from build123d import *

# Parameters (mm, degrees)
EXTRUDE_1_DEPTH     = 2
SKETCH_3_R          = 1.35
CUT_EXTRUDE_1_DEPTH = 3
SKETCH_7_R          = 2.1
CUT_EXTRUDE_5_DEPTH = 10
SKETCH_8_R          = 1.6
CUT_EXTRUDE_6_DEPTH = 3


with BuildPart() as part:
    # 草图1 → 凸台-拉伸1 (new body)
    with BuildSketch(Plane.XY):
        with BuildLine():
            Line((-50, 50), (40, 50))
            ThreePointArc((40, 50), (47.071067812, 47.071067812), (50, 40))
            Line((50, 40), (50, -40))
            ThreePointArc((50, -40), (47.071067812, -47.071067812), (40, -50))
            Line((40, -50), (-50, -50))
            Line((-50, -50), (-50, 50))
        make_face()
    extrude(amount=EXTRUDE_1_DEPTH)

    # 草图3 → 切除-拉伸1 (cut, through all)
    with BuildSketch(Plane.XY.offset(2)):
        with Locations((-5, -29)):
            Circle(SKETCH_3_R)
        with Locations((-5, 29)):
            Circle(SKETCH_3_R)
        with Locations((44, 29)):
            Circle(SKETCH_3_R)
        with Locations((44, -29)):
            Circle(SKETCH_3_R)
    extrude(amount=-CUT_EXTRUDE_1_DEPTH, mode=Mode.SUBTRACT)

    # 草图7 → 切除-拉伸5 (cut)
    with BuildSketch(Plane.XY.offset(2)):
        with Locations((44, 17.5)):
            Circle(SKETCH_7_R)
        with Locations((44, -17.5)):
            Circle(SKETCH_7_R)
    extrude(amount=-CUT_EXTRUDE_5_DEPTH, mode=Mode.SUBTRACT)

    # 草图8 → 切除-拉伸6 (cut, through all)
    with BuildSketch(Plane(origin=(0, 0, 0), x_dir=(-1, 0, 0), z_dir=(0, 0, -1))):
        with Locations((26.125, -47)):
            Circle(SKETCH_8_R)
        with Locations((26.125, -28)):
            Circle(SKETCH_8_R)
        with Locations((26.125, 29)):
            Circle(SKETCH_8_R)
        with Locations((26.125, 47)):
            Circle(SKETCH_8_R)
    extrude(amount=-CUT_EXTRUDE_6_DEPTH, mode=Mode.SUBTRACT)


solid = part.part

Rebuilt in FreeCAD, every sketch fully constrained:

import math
import FreeCAD as App
import Part
import Sketcher

doc = App.newDocument("Part")
body = doc.addObject("PartDesign::Body", "Body")

sketch1 = body.newObject("Sketcher::SketchObject", "Sketch")
sketch1.AttachmentSupport = (doc.getObject("XY_Plane"), [""])
sketch1.MapMode = "FlatFace"
sketch1.addGeometry([
    Part.LineSegment(App.Vector(40, 50, 0), App.Vector(-50, 50, 0)),
    Part.LineSegment(App.Vector(-50, 50, 0), App.Vector(-50, -50, 0)),
    Part.LineSegment(App.Vector(-50, -50, 0), App.Vector(40, -50, 0)),
    Part.ArcOfCircle(Part.Circle(App.Vector(40, -40, 0), App.Vector(0, 0, 1), 10), math.radians(-90), math.radians(0)),
    Part.LineSegment(App.Vector(50, -40, 0), App.Vector(50, 40, 0)),
    Part.ArcOfCircle(Part.Circle(App.Vector(40, 40, 0), App.Vector(0, 0, 1), 10), math.radians(0), math.radians(90)),
], False)
sketch1.addConstraint([
    Sketcher.Constraint("Coincident", 0, 2, 1, 1),
    Sketcher.Constraint("Coincident", 1, 2, 2, 1),
    Sketcher.Constraint("Tangent", 2, 2, 3, 1),
    Sketcher.Constraint("Tangent", 3, 2, 4, 1),
    Sketcher.Constraint("Tangent", 4, 2, 5, 1),
    Sketcher.Constraint("Tangent", 5, 2, 0, 1),
    Sketcher.Constraint("Horizontal", 0),
    Sketcher.Constraint("Vertical", 1),
    Sketcher.Constraint("Horizontal", 2),
    Sketcher.Constraint("Vertical", 4),
    Sketcher.Constraint("Equal", 3, 5),
    Sketcher.Constraint("Radius", 3, 10.0),
    Sketcher.Constraint("DistanceX", 0, 2, 0, 1, 90.0),
    Sketcher.Constraint("DistanceY", 1, 2, 1, 1, 100.0),
    Sketcher.Constraint("DistanceX", -1, 1, 3, 3, 40.0),
    Sketcher.Constraint("DistanceY", 3, 3, -1, 1, 40.0),
])
pad1 = body.newObject("PartDesign::Pad", "Pad")
pad1.Profile = sketch1
pad1.Length = 2

sketch2 = body.newObject("Sketcher::SketchObject", "Sketch001")
sketch2.AttachmentSupport = (doc.getObject("XY_Plane"), [""])
sketch2.MapMode = "FlatFace"
sketch2.AttachmentOffset = App.Placement(App.Vector(0, 0, 2), App.Rotation())
sketch2.addGeometry([
    Part.Circle(App.Vector(-5, -29, 0), App.Vector(0, 0, 1), 1.35),
    Part.Circle(App.Vector(-5, 29, 0), App.Vector(0, 0, 1), 1.35),
    Part.Circle(App.Vector(44, 29, 0), App.Vector(0, 0, 1), 1.35),
    Part.Circle(App.Vector(44, -29, 0), App.Vector(0, 0, 1), 1.35),
], False)
sketch2.addConstraint([
    Sketcher.Constraint("Equal", 0, 1),
    Sketcher.Constraint("Equal", 1, 2),
    Sketcher.Constraint("Equal", 2, 3),
    Sketcher.Constraint("Symmetric", 0, 3, 1, 3, -1),
    Sketcher.Constraint("Symmetric", 2, 3, 3, 3, -1),
    Sketcher.Constraint("Horizontal", 1, 3, 2, 3),
    Sketcher.Constraint("Diameter", 0, 2.7),
    Sketcher.Constraint("DistanceX", 0, 3, -1, 1, 5.0),
    Sketcher.Constraint("DistanceY", 0, 3, -1, 1, 29.0),
    Sketcher.Constraint("DistanceX", -1, 1, 2, 3, 44.0),
])
pocket1 = body.newObject("PartDesign::Pocket", "Pocket")
pocket1.Profile = sketch2
pocket1.Type = "ThroughAll"

sketch3 = body.newObject("Sketcher::SketchObject", "Sketch002")
sketch3.AttachmentSupport = (doc.getObject("XY_Plane"), [""])
sketch3.MapMode = "FlatFace"
sketch3.AttachmentOffset = App.Placement(App.Vector(0, 0, 2), App.Rotation())
sketch3.addGeometry([
    Part.Circle(App.Vector(44, 17.5, 0), App.Vector(0, 0, 1), 2.1),
    Part.Circle(App.Vector(44, -17.5, 0), App.Vector(0, 0, 1), 2.1),
], False)
sketch3.addConstraint([
    Sketcher.Constraint("Equal", 0, 1),
    Sketcher.Constraint("Symmetric", 0, 3, 1, 3, -1),
    Sketcher.Constraint("Diameter", 0, 4.2),
    Sketcher.Constraint("DistanceX", -1, 1, 0, 3, 44.0),
    Sketcher.Constraint("DistanceY", 1, 3, 0, 3, 35.0),
])
pocket2 = body.newObject("PartDesign::Pocket", "Pocket001")
pocket2.Profile = sketch3
pocket2.Length = 10

sketch4 = body.newObject("Sketcher::SketchObject", "Sketch003")
sketch4.AttachmentSupport = (doc.getObject("XY_Plane"), [""])
sketch4.MapMode = "FlatFace"
sketch4.addGeometry([
    Part.Circle(App.Vector(-26.125, -47, 0), App.Vector(0, 0, 1), 1.6),
    Part.Circle(App.Vector(-26.125, -28, 0), App.Vector(0, 0, 1), 1.6),
    Part.Circle(App.Vector(-26.125, 29, 0), App.Vector(0, 0, 1), 1.6),
    Part.Circle(App.Vector(-26.125, 47, 0), App.Vector(0, 0, 1), 1.6),
], False)
sketch4.addConstraint([
    Sketcher.Constraint("Equal", 0, 1),
    Sketcher.Constraint("Equal", 1, 2),
    Sketcher.Constraint("Equal", 2, 3),
    Sketcher.Constraint("Symmetric", 0, 3, 3, 3, -1),
    Sketcher.Constraint("Vertical", 0, 3, 1, 3),
    Sketcher.Constraint("Vertical", 1, 3, 2, 3),
    Sketcher.Constraint("Diameter", 0, 3.2),
    Sketcher.Constraint("DistanceY", 0, 3, -1, 1, 47.0),
    Sketcher.Constraint("DistanceY", 1, 3, -1, 1, 28.0),
    Sketcher.Constraint("DistanceY", -1, 1, 2, 3, 29.0),
    Sketcher.Constraint("DistanceX", 0, 3, -1, 1, 26.125),
])
pocket3 = body.newObject("PartDesign::Pocket", "Pocket002")
pocket3.Profile = sketch4
pocket3.Type = "ThroughAll"
pocket3.Reversed = True

doc.recompute()
